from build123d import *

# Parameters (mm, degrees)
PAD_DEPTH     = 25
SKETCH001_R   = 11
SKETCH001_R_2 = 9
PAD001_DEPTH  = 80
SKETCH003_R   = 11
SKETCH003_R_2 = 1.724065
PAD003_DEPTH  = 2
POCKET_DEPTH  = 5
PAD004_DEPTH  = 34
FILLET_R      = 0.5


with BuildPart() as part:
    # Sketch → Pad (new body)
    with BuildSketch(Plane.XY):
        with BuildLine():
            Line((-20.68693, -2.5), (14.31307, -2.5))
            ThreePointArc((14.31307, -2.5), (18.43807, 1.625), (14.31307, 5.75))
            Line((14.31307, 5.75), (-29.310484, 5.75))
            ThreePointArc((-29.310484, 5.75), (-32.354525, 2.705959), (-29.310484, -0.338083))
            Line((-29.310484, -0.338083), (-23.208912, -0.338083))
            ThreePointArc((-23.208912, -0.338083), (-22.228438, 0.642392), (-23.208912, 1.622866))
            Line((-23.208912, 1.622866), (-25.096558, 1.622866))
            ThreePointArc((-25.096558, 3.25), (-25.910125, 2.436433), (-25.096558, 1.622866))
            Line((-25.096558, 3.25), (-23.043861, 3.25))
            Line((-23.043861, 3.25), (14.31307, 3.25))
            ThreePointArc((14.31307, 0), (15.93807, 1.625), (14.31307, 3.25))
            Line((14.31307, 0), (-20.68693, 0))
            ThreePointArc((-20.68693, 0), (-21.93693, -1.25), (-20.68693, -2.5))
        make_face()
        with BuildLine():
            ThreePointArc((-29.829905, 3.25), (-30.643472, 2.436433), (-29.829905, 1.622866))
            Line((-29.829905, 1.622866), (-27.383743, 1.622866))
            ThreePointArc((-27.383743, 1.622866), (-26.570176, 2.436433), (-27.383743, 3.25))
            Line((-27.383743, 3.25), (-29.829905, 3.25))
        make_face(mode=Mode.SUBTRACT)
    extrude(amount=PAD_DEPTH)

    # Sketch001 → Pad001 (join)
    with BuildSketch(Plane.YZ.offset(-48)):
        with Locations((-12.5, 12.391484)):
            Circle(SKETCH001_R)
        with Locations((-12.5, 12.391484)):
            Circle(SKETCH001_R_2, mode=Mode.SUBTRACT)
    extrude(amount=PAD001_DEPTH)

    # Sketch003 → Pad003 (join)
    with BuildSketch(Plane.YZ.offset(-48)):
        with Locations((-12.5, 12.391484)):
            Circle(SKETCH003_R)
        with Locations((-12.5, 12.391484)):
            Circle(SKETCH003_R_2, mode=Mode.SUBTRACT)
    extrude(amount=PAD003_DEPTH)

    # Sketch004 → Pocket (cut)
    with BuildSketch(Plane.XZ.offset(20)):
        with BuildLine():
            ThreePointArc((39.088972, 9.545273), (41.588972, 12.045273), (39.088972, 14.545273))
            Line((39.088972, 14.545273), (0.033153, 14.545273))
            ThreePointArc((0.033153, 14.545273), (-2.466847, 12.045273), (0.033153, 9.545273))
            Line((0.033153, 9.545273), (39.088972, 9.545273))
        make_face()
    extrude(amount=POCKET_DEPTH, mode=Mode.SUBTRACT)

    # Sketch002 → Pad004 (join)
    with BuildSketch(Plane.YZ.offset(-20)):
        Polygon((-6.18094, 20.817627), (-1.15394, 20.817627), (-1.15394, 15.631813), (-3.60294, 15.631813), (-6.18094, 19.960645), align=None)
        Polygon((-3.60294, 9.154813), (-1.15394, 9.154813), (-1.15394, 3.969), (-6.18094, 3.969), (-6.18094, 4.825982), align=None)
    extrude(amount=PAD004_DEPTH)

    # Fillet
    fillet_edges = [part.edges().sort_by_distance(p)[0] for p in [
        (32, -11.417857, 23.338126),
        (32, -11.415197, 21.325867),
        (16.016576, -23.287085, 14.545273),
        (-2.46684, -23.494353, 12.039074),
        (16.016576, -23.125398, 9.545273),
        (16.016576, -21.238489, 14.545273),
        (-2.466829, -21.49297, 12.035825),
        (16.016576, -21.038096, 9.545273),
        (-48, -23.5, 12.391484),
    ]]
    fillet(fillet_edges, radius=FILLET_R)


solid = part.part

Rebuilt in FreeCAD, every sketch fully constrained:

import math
import FreeCAD as App
import Part
import Sketcher

V = App.Vector


def edges_at(feature, points):
    """Names of the edges that pass closest to the given points."""
    edges = feature.Shape.Edges
    near = lambda p: min(range(len(edges)), key=lambda i: edges[i].distToShape(Part.Vertex(*p))[0])
    return sorted({f"Edge{near(p) + 1}" for p in points})


def add_polygon(sketch, points):
    """Adds a closed chain of lines whose ends are joined by coincident constraints."""
    first, n = sketch.GeometryCount, len(points)
    for a, b in zip(points, points[1:] + points[:1]):
        sketch.addGeometry(Part.LineSegment(App.Vector(*a, 0), App.Vector(*b, 0)), False)
    for i in range(n):
        sketch.addConstraint(Sketcher.Constraint("Coincident", first + i, 2, first + (i + 1) % n, 1))

doc = App.newDocument("Part")
body = doc.addObject("PartDesign::Body", "Body")

# Sketch on XY plane
sketch1 = body.newObject("Sketcher::SketchObject", "Sketch")
sketch1.AttachmentSupport = (doc.getObject("XY_Plane"), [""])
sketch1.MapMode = "FlatFace"
sketch1.addGeometry(Part.LineSegment(V(-20.7, -2.5, 0), V(14.3, -2.5, 0)), False)
sketch1.addGeometry(Part.ArcOfCircle(Part.Circle(V(14.3, 1.6, 0), V(0, 0, 1), 4.1), math.radians(-90), math.radians(90)), False)
sketch1.addGeometry(Part.LineSegment(V(14.3, 5.8, 0), V(-29.3, 5.8, 0)), False)
sketch1.addGeometry(Part.ArcOfCircle(Part.Circle(V(-29.3, 2.7, 0), V(0, 0, 1), 3), math.radians(90), math.radians(270)), False)
sketch1.addGeometry(Part.LineSegment(V(-29.3, -0.3, 0), V(-23.2, -0.3, 0)), False)
sketch1.addGeometry(Part.ArcOfCircle(Part.Circle(V(-23.2, 0.6, 0), V(0, 0, 1), 1), math.radians(-90), math.radians(90)), False)
sketch1.addGeometry(Part.LineSegment(V(-23.2, 1.6, 0), V(-25.1, 1.6, 0)), False)
sketch1.addGeometry(Part.ArcOfCircle(Part.Circle(V(-25.1, 2.4, 0), V(0, 0, 1), 0.8), math.radians(90), math.radians(270)), False)
sketch1.addGeometry(Part.LineSegment(V(-25.1, 3.2, 0), V(14.3, 3.2, 0)), False)
sketch1.addGeometry(Part.ArcOfCircle(Part.Circle(V(14.3, 1.6, 0), V(0, 0, 1), 1.6), math.radians(-90), math.radians(90)), False)
sketch1.addGeometry(Part.LineSegment(V(14.3, 0, 0), V(-20.7, 0, 0)), False)
sketch1.addGeometry(Part.ArcOfCircle(Part.Circle(V(-20.7, -1.2, 0), V(0, 0, 1), 1.2), math.radians(90), math.radians(270)), False)
sketch1.addGeometry(Part.ArcOfCircle(Part.Circle(V(-29.8, 2.4, 0), V(0, 0, 1), 0.8), math.radians(90), math.radians(270)), False)
sketch1.addGeometry(Part.LineSegment(V(-29.8, 3.2, 0), V(-27.4, 3.2, 0)), False)
sketch1.addGeometry(Part.ArcOfCircle(Part.Circle(V(-27.4, 2.4, 0), V(0, 0, 1), 0.8), math.radians(-90), math.radians(90)), False)
sketch1.addGeometry(Part.LineSegment(V(-27.4, 1.6, 0), V(-29.8, 1.6, 0)), False)
sketch1.addConstraint(Sketcher.Constraint("Tangent", 0, 2, 1, 1))
sketch1.addConstraint(Sketcher.Constraint("Tangent", 1, 2, 2, 1))
sketch1.addConstraint(Sketcher.Constraint("Tangent", 2, 2, 3, 1))
sketch1.addConstraint(Sketcher.Constraint("Tangent", 3, 2, 4, 1))
sketch1.addConstraint(Sketcher.Constraint("Tangent", 4, 2, 5, 1))
sketch1.addConstraint(Sketcher.Constraint("Tangent", 5, 2, 6, 1))
sketch1.addConstraint(Sketcher.Constraint("Tangent", 6, 2, 7, 2))
sketch1.addConstraint(Sketcher.Constraint("Tangent", 7, 1, 8, 1))
sketch1.addConstraint(Sketcher.Constraint("Tangent", 8, 2, 9, 2))
sketch1.addConstraint(Sketcher.Constraint("Tangent", 9, 1, 10, 1))
sketch1.addConstraint(Sketcher.Constraint("Tangent", 10, 2, 11, 1))
sketch1.addConstraint(Sketcher.Constraint("Tangent", 11, 2, 0, 1))
sketch1.addConstraint(Sketcher.Constraint("Tangent", 12, 1, 13, 1))
sketch1.addConstraint(Sketcher.Constraint("Tangent", 13, 2, 14, 2))
sketch1.addConstraint(Sketcher.Constraint("Tangent", 14, 1, 15, 1))
sketch1.addConstraint(Sketcher.Constraint("Tangent", 15, 2, 12, 2))
sketch1.addConstraint(Sketcher.Constraint("Horizontal", 0))
sketch1.addConstraint(Sketcher.Constraint("Horizontal", 2))
sketch1.addConstraint(Sketcher.Constraint("Horizontal", 4))
sketch1.addConstraint(Sketcher.Constraint("Horizontal", 6))
sketch1.addConstraint(Sketcher.Constraint("Horizontal", 8))
sketch1.addConstraint(Sketcher.Constraint("Horizontal", 10))
sketch1.addConstraint(Sketcher.Constraint("Horizontal", 13))
sketch1.addConstraint(Sketcher.Constraint("Horizontal", 15))
sketch1.addConstraint(Sketcher.Constraint("Coincident", 9, 3, 1, 3))
sketch1.addConstraint(Sketcher.Constraint("Equal", 7, 12))
sketch1.addConstraint(Sketcher.Constraint("PointOnObject", 9, 1, -1))
sketch1.addConstraint(Sketcher.Constraint("Horizontal", 7, 3, 12, 3))
sketch1.addConstraint(Sketcher.Constraint("DistanceX", 0, 1, 0, 2, 35.0))
sketch1.addConstraint(Sketcher.Constraint("Radius", 11, 1.25))
sketch1.addConstraint(Sketcher.Constraint("Radius", 1, 4.125))
sketch1.addConstraint(Sketcher.Constraint("Radius", 3, 3.044042))
sketch1.addConstraint(Sketcher.Constraint("Radius", 5, 0.980475))
sketch1.addConstraint(Sketcher.Constraint("DistanceX", 4, 1, 4, 2, 6.101572))
sketch1.addConstraint(Sketcher.Constraint("DistanceX", 2, 2, 2, 1, 43.623554))
sketch1.addConstraint(Sketcher.Constraint("DistanceX", 6, 2, 6, 1, 1.887646))
sketch1.addConstraint(Sketcher.Constraint("DistanceX", 13, 1, 13, 2, 2.446162))
sketch1.addConstraint(Sketcher.Constraint("DistanceX", -1, 1, 1, 3, 14.31307))
sketch1.addConstraint(Sketcher.Constraint("DistanceX", 12, 3, 3, 3, 0.519421))
pad1 = body.newObject("PartDesign::Pad", "Pad")
pad1.Profile = sketch1
pad1.Length = 25

# Sketch on YZ plane
sketch2 = body.newObject("Sketcher::SketchObject", "Sketch001")
sketch2.AttachmentSupport = (doc.getObject("YZ_Plane"), [""])
sketch2.MapMode = "FlatFace"
sketch2.AttachmentOffset = App.Placement(V(0, 0, -48), App.Rotation())
sketch2.addGeometry(Part.Circle(V(-12, 12, 0), V(0, 0, 1), 11), False)
sketch2.addGeometry(Part.Circle(V(-12, 12, 0), V(0, 0, 1), 9), False)
sketch2.addConstraint(Sketcher.Constraint("Coincident", 1, 3, 0, 3))
sketch2.addConstraint(Sketcher.Constraint("Diameter", 0, 22.0))
sketch2.addConstraint(Sketcher.Constraint("Diameter", 1, 18.0))
sketch2.addConstraint(Sketcher.Constraint("DistanceX", 0, 3, -1, 1, 12.5))
sketch2.addConstraint(Sketcher.Constraint("DistanceY", -1, 1, 0, 3, 12.391484))
pad2 = body.newObject("PartDesign::Pad", "Pad001")
pad2.Profile = sketch2
pad2.Length = 80

# Sketch on YZ plane
sketch3 = body.newObject("Sketcher::SketchObject", "Sketch002")
sketch3.AttachmentSupport = (doc.getObject("YZ_Plane"), [""])
sketch3.MapMode = "FlatFace"
sketch3.AttachmentOffset = App.Placement(V(0, 0, -48), App.Rotation())
sketch3.addGeometry(Part.Circle(V(-12.5, 12.4, 0), V(0, 0, 1), 11), False)
sketch3.addGeometry(Part.Circle(V(-12.5, 12.4, 0), V(0, 0, 1), 1.7), False)
sketch3.addConstraint(Sketcher.Constraint("Coincident", 1, 3, 0, 3))
sketch3.addConstraint(Sketcher.Constraint("Diameter", 0, 22.0))
sketch3.addConstraint(Sketcher.Constraint("DistanceX", 0, 3, -1, 1, 12.5))
sketch3.addConstraint(Sketcher.Constraint("Diameter", 1, 3.44813))
sketch3.addConstraint(Sketcher.Constraint("DistanceY", -1, 1, 0, 3, 12.391484))
pad3 = body.newObject("PartDesign::Pad", "Pad002")
pad3.Profile = sketch3
pad3.Length = 2

# Sketch on XZ plane
sketch4 = body.newObject("Sketcher::SketchObject", "Sketch003")
sketch4.AttachmentSupport = (doc.getObject("XZ_Plane"), [""])
sketch4.MapMode = "FlatFace"
sketch4.AttachmentOffset = App.Placement(V(0, 0, 20), App.Rotation())
sketch4.addGeometry(Part.ArcOfCircle(Part.Circle(V(39.1, 12, 0), V(0, 0, 1), 2.5), math.radians(-90), math.radians(90)), False)
sketch4.addGeometry(Part.LineSegment(V(39.1, 14.5, 0), V(0, 14.5, 0)), False)
sketch4.addGeometry(Part.ArcOfCircle(Part.Circle(V(0, 12, 0), V(0, 0, 1), 2.5), math.radians(90), math.radians(270)), False)
sketch4.addGeometry(Part.LineSegment(V(0, 9.5, 0), V(39.1, 9.5, 0)), False)
sketch4.addConstraint(Sketcher.Constraint("Tangent", 0, 2, 1, 1))
sketch4.addConstraint(Sketcher.Constraint("Tangent", 1, 2, 2, 1))
sketch4.addConstraint(Sketcher.Constraint("Tangent", 2, 2, 3, 1))
sketch4.addConstraint(Sketcher.Constraint("Tangent", 3, 2, 0, 1))
sketch4.addConstraint(Sketcher.Constraint("Horizontal", 1))
sketch4.addConstraint(Sketcher.Constraint("Horizontal", 3))
sketch4.addConstraint(Sketcher.Constraint("Radius", 0, 2.5))
sketch4.addConstraint(Sketcher.Constraint("DistanceX", 1, 2, 1, 1, 39.055819))
sketch4.addConstraint(Sketcher.Constraint("DistanceX", -1, 1, 0, 3, 39.088972))
sketch4.addConstraint(Sketcher.Constraint("DistanceY", -1, 1, 0, 3, 12.045273))
pocket1 = body.newObject("PartDesign::Pocket", "Pocket")
pocket1.Profile = sketch4
pocket1.Length = 5
pocket1.Reversed = True

# Sketch on YZ plane
sketch5 = body.newObject("Sketcher::SketchObject", "Sketch004")
sketch5.AttachmentSupport = (doc.getObject("YZ_Plane"), [""])
sketch5.MapMode = "FlatFace"
sketch5.AttachmentOffset = App.Placement(V(0, 0, -20), App.Rotation())
add_polygon(sketch5, [(-1.2, 20.8), (-6.2, 20.8), (-6.2, 20), (-3.6, 15.6), (-1.2, 15.6)])  # lines 0-4
add_polygon(sketch5, [(-1.2, 9.2), (-3.6, 9.2), (-6.2, 4.8), (-6.2, 4), (-1.2, 4)])  # lines 5-9
sketch5.addConstraint(Sketcher.Constraint("Horizontal", 0))
sketch5.addConstraint(Sketcher.Constraint("Vertical", 1))
sketch5.addConstraint(Sketcher.Constraint("Horizontal", 3))
sketch5.addConstraint(Sketcher.Constraint("Vertical", 4))
sketch5.addConstraint(Sketcher.Constraint("Horizontal", 5))
sketch5.addConstraint(Sketcher.Constraint("Vertical", 7))
sketch5.addConstraint(Sketcher.Constraint("Horizontal", 8))
sketch5.addConstraint(Sketcher.Constraint("Vertical", 9))
sketch5.addConstraint(Sketcher.Constraint("Vertical", 2, 2, 5, 2))
sketch5.addConstraint(Sketcher.Constraint("Vertical", 1, 2, 6, 2))
sketch5.addConstraint(Sketcher.Constraint("Vertical", 4, 2, 8, 2))
sketch5.addConstraint(Sketcher.Constraint("Equal", 1, 7))
sketch5.addConstraint(Sketcher.Constraint("Equal", 4, 9))
sketch5.addConstraint(Sketcher.Constraint("DistanceX", 0, 2, 0, 1, 5.027))
sketch5.addConstraint(Sketcher.Constraint("DistanceX", 3, 1, 3, 2, 2.449))
sketch5.addConstraint(Sketcher.Constraint("DistanceY", -1, 1, 7, 2, 3.969))
sketch5.addConstraint(Sketcher.Constraint("DistanceY", 5, 2, 2, 2, 6.477))
sketch5.addConstraint(Sketcher.Constraint("DistanceY", 7, 2, 7, 1, 0.856982))
sketch5.addConstraint(Sketcher.Constraint("Distance", 2, 5.03834))
sketch5.addConstraint(Sketcher.Constraint("DistanceX", 0, 2, -1, 1, 6.18094))
pad4 = body.newObject("PartDesign::Pad", "Pad003")
pad4.Profile = sketch5
pad4.Length = 34
doc.recompute()

fillet = body.newObject("PartDesign::Fillet", "Fillet")
fillet.Base = (pad4, edges_at(pad4, [
    (32, -11.418, 23.338),
    (32, -11.415, 21.326),
    (16.017, -23.287, 14.545),
    (-2.467, -23.494, 12.039),
    (16.017, -23.125, 9.545),
    (16.017, -21.238, 14.545),
    (-2.467, -21.493, 12.036),
    (16.017, -21.038, 9.545),
    (-48, -23.5, 12.391),
]))
fillet.Radius = 0.5

doc.recompute()
